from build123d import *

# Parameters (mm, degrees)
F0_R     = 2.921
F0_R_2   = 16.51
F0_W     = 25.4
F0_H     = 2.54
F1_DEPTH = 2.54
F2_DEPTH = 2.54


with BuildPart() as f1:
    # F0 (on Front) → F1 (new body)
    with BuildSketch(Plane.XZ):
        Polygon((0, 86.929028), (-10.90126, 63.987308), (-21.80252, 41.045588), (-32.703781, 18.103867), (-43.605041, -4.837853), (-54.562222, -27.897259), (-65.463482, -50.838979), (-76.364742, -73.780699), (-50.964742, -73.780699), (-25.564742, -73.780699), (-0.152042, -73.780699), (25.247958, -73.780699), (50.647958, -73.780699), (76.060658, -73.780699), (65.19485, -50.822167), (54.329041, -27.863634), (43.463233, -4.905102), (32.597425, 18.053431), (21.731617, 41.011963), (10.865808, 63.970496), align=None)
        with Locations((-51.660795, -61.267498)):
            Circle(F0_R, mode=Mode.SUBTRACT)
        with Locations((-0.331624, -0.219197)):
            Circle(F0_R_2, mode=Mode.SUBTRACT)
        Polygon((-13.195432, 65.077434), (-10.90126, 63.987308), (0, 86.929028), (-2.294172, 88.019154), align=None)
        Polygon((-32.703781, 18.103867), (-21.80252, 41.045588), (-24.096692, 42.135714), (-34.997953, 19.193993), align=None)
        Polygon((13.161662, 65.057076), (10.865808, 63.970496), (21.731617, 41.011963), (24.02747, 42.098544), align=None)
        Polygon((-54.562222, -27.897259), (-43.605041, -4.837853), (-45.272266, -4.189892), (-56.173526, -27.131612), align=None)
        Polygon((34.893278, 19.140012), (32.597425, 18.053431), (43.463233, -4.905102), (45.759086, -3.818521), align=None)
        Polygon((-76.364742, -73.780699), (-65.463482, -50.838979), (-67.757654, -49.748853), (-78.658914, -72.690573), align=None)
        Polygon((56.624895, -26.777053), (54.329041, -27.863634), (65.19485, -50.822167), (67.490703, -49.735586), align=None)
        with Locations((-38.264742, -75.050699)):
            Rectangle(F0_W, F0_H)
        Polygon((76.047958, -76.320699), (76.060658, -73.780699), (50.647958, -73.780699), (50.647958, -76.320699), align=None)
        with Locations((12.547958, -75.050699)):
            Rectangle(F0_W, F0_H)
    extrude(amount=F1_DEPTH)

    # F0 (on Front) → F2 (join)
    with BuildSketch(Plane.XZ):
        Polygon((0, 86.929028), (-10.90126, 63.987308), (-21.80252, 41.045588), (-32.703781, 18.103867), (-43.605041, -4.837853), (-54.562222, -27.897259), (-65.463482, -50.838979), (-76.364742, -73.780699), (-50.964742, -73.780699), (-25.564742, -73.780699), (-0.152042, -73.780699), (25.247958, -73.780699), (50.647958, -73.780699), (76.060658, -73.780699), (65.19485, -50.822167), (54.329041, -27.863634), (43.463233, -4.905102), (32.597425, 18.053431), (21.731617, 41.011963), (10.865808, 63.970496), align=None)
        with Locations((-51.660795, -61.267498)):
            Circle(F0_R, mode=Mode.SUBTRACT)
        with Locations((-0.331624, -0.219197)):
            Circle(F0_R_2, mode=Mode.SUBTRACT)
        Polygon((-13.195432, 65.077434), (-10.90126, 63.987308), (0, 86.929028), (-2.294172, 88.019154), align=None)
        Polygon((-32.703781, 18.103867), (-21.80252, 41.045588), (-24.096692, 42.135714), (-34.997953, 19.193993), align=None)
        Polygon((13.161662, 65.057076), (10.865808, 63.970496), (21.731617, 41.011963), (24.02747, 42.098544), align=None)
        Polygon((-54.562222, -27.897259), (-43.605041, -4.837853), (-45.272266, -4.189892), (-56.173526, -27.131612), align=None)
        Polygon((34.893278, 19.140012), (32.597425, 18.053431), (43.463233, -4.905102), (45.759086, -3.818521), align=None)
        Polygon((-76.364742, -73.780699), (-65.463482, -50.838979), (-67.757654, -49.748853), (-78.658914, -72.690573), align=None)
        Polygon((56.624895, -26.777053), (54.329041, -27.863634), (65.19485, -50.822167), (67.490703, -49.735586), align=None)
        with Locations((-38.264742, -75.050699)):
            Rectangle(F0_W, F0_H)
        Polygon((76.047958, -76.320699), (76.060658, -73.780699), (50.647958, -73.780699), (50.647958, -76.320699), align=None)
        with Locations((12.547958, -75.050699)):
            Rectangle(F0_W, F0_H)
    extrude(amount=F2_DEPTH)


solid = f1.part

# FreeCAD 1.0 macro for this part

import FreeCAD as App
import Part
import Sketcher

V = App.Vector
Q = App.Units.Quantity

doc = App.newDocument("Part")
body = doc.addObject("PartDesign::Body", "Body")

# Sketch on XZ plane
sketch1 = body.newObject("Sketcher::SketchObject", "Sketch")
sketch1.AttachmentSupport = (doc.getObject("XZ_Plane"), [""])
sketch1.MapMode = "FlatFace"
sketch1.addGeometry([
    Part.LineSegment(V(-10.9, 64, 0), V(-21.8, 41, 0)),  # 0
    Part.LineSegment(V(-21.8, 41, 0), V(-24.1, 42.1, 0)),  # 1
    Part.LineSegment(V(-24.1, 42.1, 0), V(-35, 19.2, 0)),  # 2
    Part.LineSegment(V(-35, 19.2, 0), V(-32.7, 18.1, 0)),  # 3
    Part.LineSegment(V(-32.7, 18.1, 0), V(-43.6, -4.8, 0)),  # 4
    Part.LineSegment(V(-43.6, -4.8, 0), V(-45.3, -4.2, 0)),  # 5
    Part.LineSegment(V(-45.3, -4.2, 0), V(-56.2, -27.1, 0)),  # 6
    Part.LineSegment(V(-56.2, -27.1, 0), V(-54.6, -27.9, 0)),  # 7
    Part.LineSegment(V(-54.6, -27.9, 0), V(-65.5, -50.8, 0)),  # 8
    Part.LineSegment(V(-65.5, -50.8, 0), V(-67.8, -49.7, 0)),  # 9
    Part.LineSegment(V(-67.8, -49.7, 0), V(-78.7, -72.7, 0)),  # 10
    Part.LineSegment(V(-78.7, -72.7, 0), V(-76.4, -73.8, 0)),  # 11
    Part.LineSegment(V(-76.4, -73.8, 0), V(-51, -73.8, 0)),  # 12
    Part.LineSegment(V(-51, -73.8, 0), V(-51, -76.3, 0)),  # 13
    Part.LineSegment(V(-51, -76.3, 0), V(-25.6, -76.3, 0)),  # 14
    Part.LineSegment(V(-25.6, -76.3, 0), V(-25.6, -73.8, 0)),  # 15
    Part.LineSegment(V(-25.6, -73.8, 0), V(-0.2, -73.8, 0)),  # 16
    Part.LineSegment(V(-0.2, -73.8, 0), V(-0.2, -76.3, 0)),  # 17
    Part.LineSegment(V(-0.2, -76.3, 0), V(25.2, -76.3, 0)),  # 18
    Part.LineSegment(V(25.2, -76.3, 0), V(25.2, -73.8, 0)),  # 19
    Part.LineSegment(V(25.2, -73.8, 0), V(50.6, -73.8, 0)),  # 20
    Part.LineSegment(V(50.6, -73.8, 0), V(50.6, -76.3, 0)),  # 21
    Part.LineSegment(V(50.6, -76.3, 0), V(76, -76.3, 0)),  # 22
    Part.LineSegment(V(76, -76.3, 0), V(76.1, -73.8, 0)),  # 23
    Part.LineSegment(V(76.1, -73.8, 0), V(65.2, -50.8, 0)),  # 24
    Part.LineSegment(V(65.2, -50.8, 0), V(67.5, -49.7, 0)),  # 25
    Part.LineSegment(V(67.5, -49.7, 0), V(56.6, -26.8, 0)),  # 26
    Part.LineSegment(V(56.6, -26.8, 0), V(54.3, -27.9, 0)),  # 27
    Part.LineSegment(V(54.3, -27.9, 0), V(43.5, -4.9, 0)),  # 28
    Part.LineSegment(V(43.5, -4.9, 0), V(45.8, -3.8, 0)),  # 29
    Part.LineSegment(V(45.8, -3.8, 0), V(34.9, 19.1, 0)),  # 30
    Part.LineSegment(V(34.9, 19.1, 0), V(32.6, 18.1, 0)),  # 31
    Part.LineSegment(V(32.6, 18.1, 0), V(21.7, 41, 0)),  # 32
    Part.LineSegment(V(21.7, 41, 0), V(24, 42.1, 0)),  # 33
    Part.LineSegment(V(24, 42.1, 0), V(13.2, 65.1, 0)),  # 34
    Part.LineSegment(V(13.2, 65.1, 0), V(10.9, 64, 0)),  # 35
    Part.LineSegment(V(10.9, 64, 0), V(0, 86.9, 0)),  # 36
    Part.LineSegment(V(0, 86.9, 0), V(-2.3, 88, 0)),  # 37
    Part.LineSegment(V(-2.3, 88, 0), V(-13.2, 65.1, 0)),  # 38
    Part.LineSegment(V(-13.2, 65.1, 0), V(-10.9, 64, 0)),  # 39
    Part.Circle(V(-51.7, -61.3, 0), V(0, 0, 1), 2.9),  # 40
    Part.Circle(V(-0.3, -0.2, 0), V(0, 0, 1), 16.5),  # 41
], False)
sketch1.addConstraint([
    Sketcher.Constraint("Coincident", 0, 2, 1, 1),
    Sketcher.Constraint("Coincident", 1, 2, 2, 1),
    Sketcher.Constraint("Coincident", 2, 2, 3, 1),
    Sketcher.Constraint("Coincident", 3, 2, 4, 1),
    Sketcher.Constraint("Coincident", 4, 2, 5, 1),
    Sketcher.Constraint("Coincident", 5, 2, 6, 1),
    Sketcher.Constraint("Coincident", 6, 2, 7, 1),
    Sketcher.Constraint("Coincident", 7, 2, 8, 1),
    Sketcher.Constraint("Coincident", 8, 2, 9, 1),
    Sketcher.Constraint("Coincident", 9, 2, 10, 1),
    Sketcher.Constraint("Coincident", 10, 2, 11, 1),
    Sketcher.Constraint("Coincident", 11, 2, 12, 1),
    Sketcher.Constraint("Coincident", 12, 2, 13, 1),
    Sketcher.Constraint("Coincident", 13, 2, 14, 1),
    Sketcher.Constraint("Coincident", 14, 2, 15, 1),
    Sketcher.Constraint("Coincident", 15, 2, 16, 1),
    Sketcher.Constraint("Coincident", 16, 2, 17, 1),
    Sketcher.Constraint("Coincident", 17, 2, 18, 1),
    Sketcher.Constraint("Coincident", 18, 2, 19, 1),
    Sketcher.Constraint("Coincident", 19, 2, 20, 1),
    Sketcher.Constraint("Coincident", 20, 2, 21, 1),
    Sketcher.Constraint("Coincident", 21, 2, 22, 1),
    Sketcher.Constraint("Coincident", 22, 2, 23, 1),
    Sketcher.Constraint("Coincident", 23, 2, 24, 1),
    Sketcher.Constraint("Coincident", 24, 2, 25, 1),
    Sketcher.Constraint("Coincident", 25, 2, 26, 1),
    Sketcher.Constraint("Coincident", 26, 2, 27, 1),
    Sketcher.Constraint("Coincident", 27, 2, 28, 1),
    Sketcher.Constraint("Coincident", 28, 2, 29, 1),
    Sketcher.Constraint("Coincident", 29, 2, 30, 1),
    Sketcher.Constraint("Coincident", 30, 2, 31, 1),
    Sketcher.Constraint("Coincident", 31, 2, 32, 1),
    Sketcher.Constraint("Coincident", 32, 2, 33, 1),
    Sketcher.Constraint("Coincident", 33, 2, 34, 1),
    Sketcher.Constraint("Coincident", 34, 2, 35, 1),
    Sketcher.Constraint("Coincident", 35, 2, 36, 1),
    Sketcher.Constraint("Coincident", 36, 2, 37, 1),
    Sketcher.Constraint("Coincident", 37, 2, 38, 1),
    Sketcher.Constraint("Coincident", 38, 2, 39, 1),
    Sketcher.Constraint("Coincident", 39, 2, 0, 1),
    Sketcher.Constraint("Horizontal", 12),
    Sketcher.Constraint("Vertical", 13),
    Sketcher.Constraint("Horizontal", 14),
    Sketcher.Constraint("Vertical", 15),
    Sketcher.Constraint("Horizontal", 16),
    Sketcher.Constraint("Vertical", 17),
    Sketcher.Constraint("Horizontal", 18),
    Sketcher.Constraint("Vertical", 19),
    Sketcher.Constraint("Horizontal", 20),
    Sketcher.Constraint("Vertical", 21),
    Sketcher.Constraint("Horizontal", 22),
    Sketcher.Constraint("PointOnObject", 36, 2, -2),
    Sketcher.Constraint("Perpendicular", 0, 1),
    Sketcher.Constraint("Perpendicular", 1, 2),
    Sketcher.Constraint("Perpendicular", 2, 3),
    Sketcher.Constraint("Perpendicular", 3, 4),
    Sketcher.Constraint("Parallel", 4, 6),
    Sketcher.Constraint("Perpendicular", 6, 7),
    Sketcher.Constraint("Perpendicular", 7, 8),
    Sketcher.Constraint("Perpendicular", 8, 9),
    Sketcher.Constraint("Perpendicular", 9, 10),
    Sketcher.Constraint("Perpendicular", 10, 11),
    Sketcher.Constraint("Perpendicular", 24, 25),
    Sketcher.Constraint("Perpendicular", 25, 26),
    Sketcher.Constraint("Perpendicular", 26, 27),
    Sketcher.Constraint("Perpendicular", 27, 28),
    Sketcher.Constraint("Perpendicular", 28, 29),
    Sketcher.Constraint("Perpendicular", 29, 30),
    Sketcher.Constraint("Perpendicular", 30, 31),
    Sketcher.Constraint("Perpendicular", 31, 32),
    Sketcher.Constraint("Perpendicular", 32, 33),
    Sketcher.Constraint("Perpendicular", 33, 34),
    Sketcher.Constraint("Perpendicular", 34, 35),
    Sketcher.Constraint("Perpendicular", 35, 36),
    Sketcher.Constraint("Parallel", 11, 37),
    Sketcher.Constraint("Perpendicular", 37, 38),
    Sketcher.Constraint("Perpendicular", 38, 39),
    Sketcher.Constraint("Horizontal", 12, 2, 15, 2),
    Sketcher.Constraint("Horizontal", 14, 2, 17, 2),
    Sketcher.Constraint("Horizontal", 16, 2, 19, 2),
    Sketcher.Constraint("Horizontal", 18, 2, 21, 2),
    Sketcher.Constraint("Horizontal", 20, 2, 23, 2),
    Sketcher.Constraint("Equal", 12, 14),
    Sketcher.Constraint("Equal", 14, 18),
    Sketcher.Constraint("Equal", 18, 20),
    Sketcher.Constraint("Equal", 20, 22),
    Sketcher.Constraint("Equal", 0, 2),
    Sketcher.Constraint("Equal", 1, 3),
    Sketcher.Constraint("Equal", 2, 4),
    Sketcher.Constraint("Equal", 4, 6),
    Sketcher.Constraint("Equal", 6, 8),
    Sketcher.Constraint("Equal", 3, 9),
    Sketcher.Constraint("Equal", 8, 10),
    Sketcher.Constraint("Equal", 9, 11),
    Sketcher.Constraint("Equal", 10, 24),
    Sketcher.Constraint("Equal", 11, 25),
    Sketcher.Constraint("Equal", 24, 26),
    Sketcher.Constraint("Equal", 25, 27),
    Sketcher.Constraint("Equal", 26, 28),
    Sketcher.Constraint("Equal", 27, 29),
    Sketcher.Constraint("Equal", 28, 30),
    Sketcher.Constraint("Equal", 29, 31),
    Sketcher.Constraint("Equal", 30, 32),
    Sketcher.Constraint("Equal", 31, 33),
    Sketcher.Constraint("Equal", 32, 34),
    Sketcher.Constraint("Equal", 33, 35),
    Sketcher.Constraint("Equal", 34, 36),
    Sketcher.Constraint("Equal", 35, 37),
    Sketcher.Constraint("Equal", 36, 38),
    Sketcher.Constraint("Equal", 37, 39),
    Sketcher.Constraint("Diameter", 41, Q("1.3 in")),
    Sketcher.Constraint("Diameter", 40, Q("0.23 in")),
    Sketcher.Constraint("DistanceX", 12, 1, 12, 2, Q("1 in")),
    Sketcher.Constraint("Distance", 0, Q("1 in")),
    Sketcher.Constraint("DistanceY", 13, 2, 13, 1, Q("0.1 in")),
    Sketcher.Constraint("Distance", 1, Q("0.1 in")),
    Sketcher.Constraint("DistanceX", 16, 1, 16, 2, Q("1.0005 in")),
    Sketcher.Constraint("DistanceX", 22, 2, 23, 2, Q("0.0005 in")),
    Sketcher.Constraint("DistanceX", 25, 2, 23, 2, Q("0.3373998 in")),
    Sketcher.Constraint("DistanceY", 40, 3, -1, 1, Q("61.267498 mm")),
    Sketcher.Constraint("DistanceY", 11, 2, -1, 1, Q("73.780699 mm")),
    Sketcher.Constraint("DistanceY", 40, 3, 41, 3, Q("61.048301 mm")),
    Sketcher.Constraint("DistanceX", 1, 2, 35, 2, Q("34.9625 mm")),
    Sketcher.Constraint("Distance", 7, Q("1.783961 mm")),
    Sketcher.Constraint("DistanceX", 40, 3, 41, 3, Q("51.329171 mm")),
    Sketcher.Constraint("DistanceX", 2, 2, 41, 3, Q("34.666329 mm")),
])
pad1 = body.newObject("PartDesign::Pad", "Pad")
pad1.Profile = sketch1
pad1.Length = Q("0.1 in")

# Sketch on XZ plane
sketch2 = body.newObject("Sketcher::SketchObject", "Sketch001")
sketch2.AttachmentSupport = (doc.getObject("XZ_Plane"), [""])
sketch2.MapMode = "FlatFace"
sketch2.addGeometry([
    Part.LineSegment(V(-10.9, 64, 0), V(-21.8, 41, 0)),  # 0
    Part.LineSegment(V(-21.8, 41, 0), V(-24.1, 42.1, 0)),  # 1
    Part.LineSegment(V(-24.1, 42.1, 0), V(-35, 19.2, 0)),  # 2
    Part.LineSegment(V(-35, 19.2, 0), V(-32.7, 18.1, 0)),  # 3
    Part.LineSegment(V(-32.7, 18.1, 0), V(-43.6, -4.8, 0)),  # 4
    Part.LineSegment(V(-43.6, -4.8, 0), V(-45.3, -4.2, 0)),  # 5
    Part.LineSegment(V(-45.3, -4.2, 0), V(-56.2, -27.1, 0)),  # 6
    Part.LineSegment(V(-56.2, -27.1, 0), V(-54.6, -27.9, 0)),  # 7
    Part.LineSegment(V(-54.6, -27.9, 0), V(-65.5, -50.8, 0)),  # 8
    Part.LineSegment(V(-65.5, -50.8, 0), V(-67.8, -49.7, 0)),  # 9
    Part.LineSegment(V(-67.8, -49.7, 0), V(-78.7, -72.7, 0)),  # 10
    Part.LineSegment(V(-78.7, -72.7, 0), V(-76.4, -73.8, 0)),  # 11
    Part.LineSegment(V(-76.4, -73.8, 0), V(-51, -73.8, 0)),  # 12
    Part.LineSegment(V(-51, -73.8, 0), V(-51, -76.3, 0)),  # 13
    Part.LineSegment(V(-51, -76.3, 0), V(-25.6, -76.3, 0)),  # 14
    Part.LineSegment(V(-25.6, -76.3, 0), V(-25.6, -73.8, 0)),  # 15
    Part.LineSegment(V(-25.6, -73.8, 0), V(-0.2, -73.8, 0)),  # 16
    Part.LineSegment(V(-0.2, -73.8, 0), V(-0.2, -76.3, 0)),  # 17
    Part.LineSegment(V(-0.2, -76.3, 0), V(25.2, -76.3, 0)),  # 18
    Part.LineSegment(V(25.2, -76.3, 0), V(25.2, -73.8, 0)),  # 19
    Part.LineSegment(V(25.2, -73.8, 0), V(50.6, -73.8, 0)),  # 20
    Part.LineSegment(V(50.6, -73.8, 0), V(50.6, -76.3, 0)),  # 21
    Part.LineSegment(V(50.6, -76.3, 0), V(76, -76.3, 0)),  # 22
    Part.LineSegment(V(76, -76.3, 0), V(76.1, -73.8, 0)),  # 23
    Part.LineSegment(V(76.1, -73.8, 0), V(65.2, -50.8, 0)),  # 24
    Part.LineSegment(V(65.2, -50.8, 0), V(67.5, -49.7, 0)),  # 25
    Part.LineSegment(V(67.5, -49.7, 0), V(56.6, -26.8, 0)),  # 26
    Part.LineSegment(V(56.6, -26.8, 0), V(54.3, -27.9, 0)),  # 27
    Part.LineSegment(V(54.3, -27.9, 0), V(43.5, -4.9, 0)),  # 28
    Part.LineSegment(V(43.5, -4.9, 0), V(45.8, -3.8, 0)),  # 29
    Part.LineSegment(V(45.8, -3.8, 0), V(34.9, 19.1, 0)),  # 30
    Part.LineSegment(V(34.9, 19.1, 0), V(32.6, 18.1, 0)),  # 31
    Part.LineSegment(V(32.6, 18.1, 0), V(21.7, 41, 0)),  # 32
    Part.LineSegment(V(21.7, 41, 0), V(24, 42.1, 0)),  # 33
    Part.LineSegment(V(24, 42.1, 0), V(13.2, 65.1, 0)),  # 34
    Part.LineSegment(V(13.2, 65.1, 0), V(10.9, 64, 0)),  # 35
    Part.LineSegment(V(10.9, 64, 0), V(0, 86.9, 0)),  # 36
    Part.LineSegment(V(0, 86.9, 0), V(-2.3, 88, 0)),  # 37
    Part.LineSegment(V(-2.3, 88, 0), V(-13.2, 65.1, 0)),  # 38
    Part.LineSegment(V(-13.2, 65.1, 0), V(-10.9, 64, 0)),  # 39
    Part.Circle(V(-51.7, -61.3, 0), V(0, 0, 1), 2.9),  # 40
    Part.Circle(V(-0.3, -0.2, 0), V(0, 0, 1), 16.5),  # 41
], False)
sketch2.addConstraint([
    Sketcher.Constraint("Coincident", 0, 2, 1, 1),
    Sketcher.Constraint("Coincident", 1, 2, 2, 1),
    Sketcher.Constraint("Coincident", 2, 2, 3, 1),
    Sketcher.Constraint("Coincident", 3, 2, 4, 1),
    Sketcher.Constraint("Coincident", 4, 2, 5, 1),
    Sketcher.Constraint("Coincident", 5, 2, 6, 1),
    Sketcher.Constraint("Coincident", 6, 2, 7, 1),
    Sketcher.Constraint("Coincident", 7, 2, 8, 1),
    Sketcher.Constraint("Coincident", 8, 2, 9, 1),
    Sketcher.Constraint("Coincident", 9, 2, 10, 1),
    Sketcher.Constraint("Coincident", 10, 2, 11, 1),
    Sketcher.Constraint("Coincident", 11, 2, 12, 1),
    Sketcher.Constraint("Coincident", 12, 2, 13, 1),
    Sketcher.Constraint("Coincident", 13, 2, 14, 1),
    Sketcher.Constraint("Coincident", 14, 2, 15, 1),
    Sketcher.Constraint("Coincident", 15, 2, 16, 1),
    Sketcher.Constraint("Coincident", 16, 2, 17, 1),
    Sketcher.Constraint("Coincident", 17, 2, 18, 1),
    Sketcher.Constraint("Coincident", 18, 2, 19, 1),
    Sketcher.Constraint("Coincident", 19, 2, 20, 1),
    Sketcher.Constraint("Coincident", 20, 2, 21, 1),
    Sketcher.Constraint("Coincident", 21, 2, 22, 1),
    Sketcher.Constraint("Coincident", 22, 2, 23, 1),
    Sketcher.Constraint("Coincident", 23, 2, 24, 1),
    Sketcher.Constraint("Coincident", 24, 2, 25, 1),
    Sketcher.Constraint("Coincident", 25, 2, 26, 1),
    Sketcher.Constraint("Coincident", 26, 2, 27, 1),
    Sketcher.Constraint("Coincident", 27, 2, 28, 1),
    Sketcher.Constraint("Coincident", 28, 2, 29, 1),
    Sketcher.Constraint("Coincident", 29, 2, 30, 1),
    Sketcher.Constraint("Coincident", 30, 2, 31, 1),
    Sketcher.Constraint("Coincident", 31, 2, 32, 1),
    Sketcher.Constraint("Coincident", 32, 2, 33, 1),
    Sketcher.Constraint("Coincident", 33, 2, 34, 1),
    Sketcher.Constraint("Coincident", 34, 2, 35, 1),
    Sketcher.Constraint("Coincident", 35, 2, 36, 1),
    Sketcher.Constraint("Coincident", 36, 2, 37, 1),
    Sketcher.Constraint("Coincident", 37, 2, 38, 1),
    Sketcher.Constraint("Coincident", 38, 2, 39, 1),
    Sketcher.Constraint("Coincident", 39, 2, 0, 1),
    Sketcher.Constraint("Horizontal", 12),
    Sketcher.Constraint("Vertical", 13),
    Sketcher.Constraint("Horizontal", 14),
    Sketcher.Constraint("Vertical", 15),
    Sketcher.Constraint("Horizontal", 16),
    Sketcher.Constraint("Vertical", 17),
    Sketcher.Constraint("Horizontal", 18),
    Sketcher.Constraint("Vertical", 19),
    Sketcher.Constraint("Horizontal", 20),
    Sketcher.Constraint("Vertical", 21),
    Sketcher.Constraint("Horizontal", 22),
    Sketcher.Constraint("PointOnObject", 36, 2, -2),
    Sketcher.Constraint("Perpendicular", 0, 1),
    Sketcher.Constraint("Perpendicular", 1, 2),
    Sketcher.Constraint("Perpendicular", 2, 3),
    Sketcher.Constraint("Perpendicular", 3, 4),
    Sketcher.Constraint("Parallel", 4, 6),
    Sketcher.Constraint("Perpendicular", 6, 7),
    Sketcher.Constraint("Perpendicular", 7, 8),
    Sketcher.Constraint("Perpendicular", 8, 9),
    Sketcher.Constraint("Perpendicular", 9, 10),
    Sketcher.Constraint("Perpendicular", 10, 11),
    Sketcher.Constraint("Perpendicular", 24, 25),
    Sketcher.Constraint("Perpendicular", 25, 26),
    Sketcher.Constraint("Perpendicular", 26, 27),
    Sketcher.Constraint("Perpendicular", 27, 28),
    Sketcher.Constraint("Perpendicular", 28, 29),
    Sketcher.Constraint("Perpendicular", 29, 30),
    Sketcher.Constraint("Perpendicular", 30, 31),
    Sketcher.Constraint("Perpendicular", 31, 32),
    Sketcher.Constraint("Perpendicular", 32, 33),
    Sketcher.Constraint("Perpendicular", 33, 34),
    Sketcher.Constraint("Perpendicular", 34, 35),
    Sketcher.Constraint("Perpendicular", 35, 36),
    Sketcher.Constraint("Parallel", 11, 37),
    Sketcher.Constraint("Perpendicular", 37, 38),
    Sketcher.Constraint("Perpendicular", 38, 39),
    Sketcher.Constraint("Horizontal", 12, 2, 15, 2),
    Sketcher.Constraint("Horizontal", 14, 2, 17, 2),
    Sketcher.Constraint("Horizontal", 16, 2, 19, 2),
    Sketcher.Constraint("Horizontal", 18, 2, 21, 2),
    Sketcher.Constraint("Horizontal", 20, 2, 23, 2),
    Sketcher.Constraint("Equal", 12, 14),
    Sketcher.Constraint("Equal", 14, 18),
    Sketcher.Constraint("Equal", 18, 20),
    Sketcher.Constraint("Equal", 20, 22),
    Sketcher.Constraint("Equal", 0, 2),
    Sketcher.Constraint("Equal", 1, 3),
    Sketcher.Constraint("Equal", 2, 4),
    Sketcher.Constraint("Equal", 4, 6),
    Sketcher.Constraint("Equal", 6, 8),
    Sketcher.Constraint("Equal", 3, 9),
    Sketcher.Constraint("Equal", 8, 10),
    Sketcher.Constraint("Equal", 9, 11),
    Sketcher.Constraint("Equal", 10, 24),
    Sketcher.Constraint("Equal", 11, 25),
    Sketcher.Constraint("Equal", 24, 26),
    Sketcher.Constraint("Equal", 25, 27),
    Sketcher.Constraint("Equal", 26, 28),
    Sketcher.Constraint("Equal", 27, 29),
    Sketcher.Constraint("Equal", 28, 30),
    Sketcher.Constraint("Equal", 29, 31),
    Sketcher.Constraint("Equal", 30, 32),
    Sketcher.Constraint("Equal", 31, 33),
    Sketcher.Constraint("Equal", 32, 34),
    Sketcher.Constraint("Equal", 33, 35),
    Sketcher.Constraint("Equal", 34, 36),
    Sketcher.Constraint("Equal", 35, 37),
    Sketcher.Constraint("Equal", 36, 38),
    Sketcher.Constraint("Equal", 37, 39),
    Sketcher.Constraint("Diameter", 41, Q("1.3 in")),
    Sketcher.Constraint("Diameter", 40, Q("0.23 in")),
    Sketcher.Constraint("DistanceX", 12, 1, 12, 2, Q("1 in")),
    Sketcher.Constraint("Distance", 0, Q("1 in")),
    Sketcher.Constraint("DistanceY", 13, 2, 13, 1, Q("0.1 in")),
    Sketcher.Constraint("Distance", 1, Q("0.1 in")),
    Sketcher.Constraint("DistanceX", 16, 1, 16, 2, Q("1.0005 in")),
    Sketcher.Constraint("DistanceX", 22, 2, 23, 2, Q("0.0005 in")),
    Sketcher.Constraint("DistanceX", 25, 2, 23, 2, Q("0.3373998 in")),
    Sketcher.Constraint("DistanceY", 40, 3, -1, 1, Q("61.267498 mm")),
    Sketcher.Constraint("DistanceY", 11, 2, -1, 1, Q("73.780699 mm")),
    Sketcher.Constraint("DistanceY", 40, 3, 41, 3, Q("61.048301 mm")),
    Sketcher.Constraint("DistanceX", 1, 2, 35, 2, Q("34.9625 mm")),
    Sketcher.Constraint("Distance", 7, Q("1.783961 mm")),
    Sketcher.Constraint("DistanceX", 40, 3, 41, 3, Q("51.329171 mm")),
    Sketcher.Constraint("DistanceX", 2, 2, 41, 3, Q("34.666329 mm")),
])
pad2 = body.newObject("PartDesign::Pad", "Pad001")
pad2.Profile = sketch2
pad2.Length = Q("0.1 in")

doc.recompute()
